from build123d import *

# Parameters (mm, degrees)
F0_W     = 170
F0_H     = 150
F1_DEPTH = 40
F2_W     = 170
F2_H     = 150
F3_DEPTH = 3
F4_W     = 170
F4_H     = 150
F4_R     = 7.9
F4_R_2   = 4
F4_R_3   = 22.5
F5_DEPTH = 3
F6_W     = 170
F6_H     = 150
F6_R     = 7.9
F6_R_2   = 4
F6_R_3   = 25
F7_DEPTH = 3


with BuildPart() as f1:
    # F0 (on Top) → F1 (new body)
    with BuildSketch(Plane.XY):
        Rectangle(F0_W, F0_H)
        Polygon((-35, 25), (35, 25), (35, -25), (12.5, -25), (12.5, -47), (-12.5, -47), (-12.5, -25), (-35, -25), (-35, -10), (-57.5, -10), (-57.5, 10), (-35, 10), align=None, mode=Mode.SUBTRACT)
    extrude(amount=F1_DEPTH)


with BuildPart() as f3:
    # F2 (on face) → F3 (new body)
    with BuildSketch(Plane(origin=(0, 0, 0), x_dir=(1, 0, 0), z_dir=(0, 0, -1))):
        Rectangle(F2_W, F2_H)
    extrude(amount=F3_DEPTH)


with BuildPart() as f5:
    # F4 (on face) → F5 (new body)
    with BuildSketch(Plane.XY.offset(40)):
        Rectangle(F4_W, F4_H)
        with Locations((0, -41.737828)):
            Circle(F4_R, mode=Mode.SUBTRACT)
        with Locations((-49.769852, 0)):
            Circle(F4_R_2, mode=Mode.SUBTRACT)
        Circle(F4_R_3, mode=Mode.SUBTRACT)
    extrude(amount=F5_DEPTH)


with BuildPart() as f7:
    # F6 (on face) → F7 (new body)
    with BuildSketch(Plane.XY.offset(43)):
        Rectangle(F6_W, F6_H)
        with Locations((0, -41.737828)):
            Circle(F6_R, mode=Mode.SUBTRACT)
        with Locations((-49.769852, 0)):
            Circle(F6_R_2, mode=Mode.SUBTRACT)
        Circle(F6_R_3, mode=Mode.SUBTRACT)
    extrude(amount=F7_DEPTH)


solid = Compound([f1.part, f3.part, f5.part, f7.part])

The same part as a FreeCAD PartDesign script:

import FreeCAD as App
import Part
import Sketcher
from FreeCAD import Vector

doc = App.newDocument("Part")
body = doc.addObject("PartDesign::Body", "Body")

# Sketch on XY plane
sketch1 = body.newObject("Sketcher::SketchObject", "Sketch")
sketch1.AttachmentSupport = (doc.getObject("XY_Plane"), [""])
sketch1.MapMode = "FlatFace"
sketch1.addGeometry([
    Part.LineSegment(Vector(-85, 75, 0), Vector(-85, -75, 0)),  # 0
    Part.LineSegment(Vector(-85, -75, 0), Vector(85, -75, 0)),  # 1
    Part.LineSegment(Vector(85, -75, 0), Vector(85, 75, 0)),  # 2
    Part.LineSegment(Vector(85, 75, 0), Vector(-85, 75, 0)),  # 3
    Part.LineSegment(Vector(-35, 10, 0), Vector(-35, 25, 0)),  # 4
    Part.LineSegment(Vector(-35, 25, 0), Vector(35, 25, 0)),  # 5
    Part.LineSegment(Vector(35, 25, 0), Vector(35, -25, 0)),  # 6
    Part.LineSegment(Vector(35, -25, 0), Vector(12, -25, 0)),  # 7
    Part.LineSegment(Vector(12, -25, 0), Vector(12, -47, 0)),  # 8
    Part.LineSegment(Vector(12, -47, 0), Vector(-12, -47, 0)),  # 9
    Part.LineSegment(Vector(-12, -47, 0), Vector(-12, -25, 0)),  # 10
    Part.LineSegment(Vector(-12, -25, 0), Vector(-35, -25, 0)),  # 11
    Part.LineSegment(Vector(-35, -25, 0), Vector(-35, -10, 0)),  # 12
    Part.LineSegment(Vector(-35, -10, 0), Vector(-58, -10, 0)),  # 13
    Part.LineSegment(Vector(-58, -10, 0), Vector(-58, 10, 0)),  # 14
    Part.LineSegment(Vector(-58, 10, 0), Vector(-35, 10, 0)),  # 15
], False)
sketch1.addConstraint([
    Sketcher.Constraint("Coincident", 0, 2, 1, 1),
    Sketcher.Constraint("Coincident", 1, 2, 2, 1),
    Sketcher.Constraint("Coincident", 2, 2, 3, 1),
    Sketcher.Constraint("Coincident", 3, 2, 0, 1),
    Sketcher.Constraint("Coincident", 4, 2, 5, 1),
    Sketcher.Constraint("Coincident", 5, 2, 6, 1),
    Sketcher.Constraint("Coincident", 6, 2, 7, 1),
    Sketcher.Constraint("Coincident", 7, 2, 8, 1),
    Sketcher.Constraint("Coincident", 8, 2, 9, 1),
    Sketcher.Constraint("Coincident", 9, 2, 10, 1),
    Sketcher.Constraint("Coincident", 10, 2, 11, 1),
    Sketcher.Constraint("Coincident", 11, 2, 12, 1),
    Sketcher.Constraint("Coincident", 12, 2, 13, 1),
    Sketcher.Constraint("Coincident", 13, 2, 14, 1),
    Sketcher.Constraint("Coincident", 14, 2, 15, 1),
    Sketcher.Constraint("Coincident", 15, 2, 4, 1),
    Sketcher.Constraint("Vertical", 0),
    Sketcher.Constraint("Horizontal", 1),
    Sketcher.Constraint("Vertical", 2),
    Sketcher.Constraint("Horizontal", 3),
    Sketcher.Constraint("Vertical", 4),
    Sketcher.Constraint("Horizontal", 5),
    Sketcher.Constraint("Vertical", 6),
    Sketcher.Constraint("Horizontal", 7),
    Sketcher.Constraint("Vertical", 8),
    Sketcher.Constraint("Horizontal", 9),
    Sketcher.Constraint("Vertical", 10),
    Sketcher.Constraint("Horizontal", 11),
    Sketcher.Constraint("Vertical", 12),
    Sketcher.Constraint("Horizontal", 13),
    Sketcher.Constraint("Vertical", 14),
    Sketcher.Constraint("Horizontal", 15),
    Sketcher.Constraint("Symmetric", 0, 2, 2, 2, -1, 1),
    Sketcher.Constraint("Symmetric", 4, 2, 6, 2, -1, 1),
    Sketcher.Constraint("Symmetric", 5, 2, 11, 2, -1, 1),
    Sketcher.Constraint("Equal", 7, 11),
    Sketcher.Constraint("Equal", 11, 13),
    Sketcher.Constraint("Equal", 4, 12),
    Sketcher.Constraint("DistanceX", 1, 1, 1, 2, 170.0),
    Sketcher.Constraint("DistanceX", 5, 1, 5, 2, 70.0),
    Sketcher.Constraint("DistanceX", 9, 2, 9, 1, 25.0),
    Sketcher.Constraint("DistanceY", 0, 2, 0, 1, 150.0),
    Sketcher.Constraint("DistanceY", 4, 1, 4, 2, 15.0),
    Sketcher.Constraint("DistanceY", 6, 2, 6, 1, 50.0),
    Sketcher.Constraint("DistanceY", 8, 2, 8, 1, 22.0),
])
pad1 = body.newObject("PartDesign::Pad", "Pad")
pad1.Profile = sketch1
pad1.Length = 40
body2 = doc.addObject("PartDesign::Body", "Body001")

# Sketch on XY plane
sketch2 = body2.newObject("Sketcher::SketchObject", "Sketch001")
sketch2.AttachmentSupport = (doc.getObject("XY_Plane001"), [""])
sketch2.MapMode = "FlatFace"
sketch2.addGeometry([
    Part.LineSegment(Vector(-85, -75, 0), Vector(-85, 75, 0)),
    Part.LineSegment(Vector(-85, 75, 0), Vector(85, 75, 0)),
    Part.LineSegment(Vector(85, 75, 0), Vector(85, -75, 0)),
    Part.LineSegment(Vector(85, -75, 0), Vector(-85, -75, 0)),
], False)
sketch2.addConstraint([
    Sketcher.Constraint("Coincident", 0, 2, 1, 1),
    Sketcher.Constraint("Coincident", 1, 2, 2, 1),
    Sketcher.Constraint("Coincident", 2, 2, 3, 1),
    Sketcher.Constraint("Coincident", 3, 2, 0, 1),
    Sketcher.Constraint("Vertical", 0),
    Sketcher.Constraint("Horizontal", 1),
    Sketcher.Constraint("Vertical", 2),
    Sketcher.Constraint("Horizontal", 3),
    Sketcher.Constraint("Symmetric", 0, 2, 2, 2, -1, 1),
    Sketcher.Constraint("DistanceX", 1, 1, 1, 2, 170.0),
    Sketcher.Constraint("DistanceY", 0, 1, 0, 2, 150.0),
])
pad2 = body2.newObject("PartDesign::Pad", "Pad001")
pad2.Profile = sketch2
pad2.Length = 3
pad2.Reversed = True
body3 = doc.addObject("PartDesign::Body", "Body002")

# Sketch on XY plane
sketch3 = body3.newObject("Sketcher::SketchObject", "Sketch002")
sketch3.AttachmentSupport = (doc.getObject("XY_Plane002"), [""])
sketch3.MapMode = "FlatFace"
sketch3.AttachmentOffset = App.Placement(Vector(0, 0, 40), App.Rotation())
sketch3.addGeometry([
    Part.LineSegment(Vector(-85, 75, 0), Vector(-85, -75, 0)),  # 0
    Part.LineSegment(Vector(-85, -75, 0), Vector(85, -75, 0)),  # 1
    Part.LineSegment(Vector(85, -75, 0), Vector(85, 75, 0)),  # 2
    Part.LineSegment(Vector(85, 75, 0), Vector(-85, 75, 0)),  # 3
    Part.Circle(Vector(0, -41.7, 0), Vector(0, 0, 1), 7.9),  # 4
    Part.Circle(Vector(-49.8, 0, 0), Vector(0, 0, 1), 4),  # 5
    Part.Circle(Vector(0, 0, 0), Vector(0, 0, 1), 22.5),  # 6
], False)
sketch3.addConstraint([
    Sketcher.Constraint("Coincident", 0, 2, 1, 1),
    Sketcher.Constraint("Coincident", 1, 2, 2, 1),
    Sketcher.Constraint("Coincident", 2, 2, 3, 1),
    Sketcher.Constraint("Coincident", 3, 2, 0, 1),
    Sketcher.Constraint("Vertical", 0),
    Sketcher.Constraint("Horizontal", 1),
    Sketcher.Constraint("Vertical", 2),
    Sketcher.Constraint("Horizontal", 3),
    Sketcher.Constraint("Coincident", 6, 3, -1, 1),
    Sketcher.Constraint("Symmetric", 0, 2, 2, 2, -1, 1),
    Sketcher.Constraint("PointOnObject", 4, 3, -2),
    Sketcher.Constraint("PointOnObject", 5, 3, -1),
    Sketcher.Constraint("Diameter", 5, 8.0),
    Sketcher.Constraint("Diameter", 6, 45.0),
    Sketcher.Constraint("Diameter", 4, 15.8),
    Sketcher.Constraint("DistanceX", 1, 1, 1, 2, 170.0),
    Sketcher.Constraint("DistanceY", 0, 2, 0, 1, 150.0),
    Sketcher.Constraint("DistanceY", 4, 3, 2, 2, 116.737828),
    Sketcher.Constraint("DistanceX", 5, 3, -1, 1, 49.769852),
])
pad3 = body3.newObject("PartDesign::Pad", "Pad002")
pad3.Profile = sketch3
pad3.Length = 3
body4 = doc.addObject("PartDesign::Body", "Body003")

# Sketch on XY plane
sketch4 = body4.newObject("Sketcher::SketchObject", "Sketch003")
sketch4.AttachmentSupport = (doc.getObject("XY_Plane003"), [""])
sketch4.MapMode = "FlatFace"
sketch4.AttachmentOffset = App.Placement(Vector(0, 0, 43), App.Rotation())
sketch4.addGeometry([
    Part.LineSegment(Vector(-85, 75, 0), Vector(-85, -75, 0)),  # 0
    Part.LineSegment(Vector(-85, -75, 0), Vector(85, -75, 0)),  # 1
    Part.LineSegment(Vector(85, -75, 0), Vector(85, 75, 0)),  # 2
    Part.LineSegment(Vector(85, 75, 0), Vector(-85, 75, 0)),  # 3
    Part.Circle(Vector(0, -41.7, 0), Vector(0, 0, 1), 7.9),  # 4
    Part.Circle(Vector(-49.8, 0, 0), Vector(0, 0, 1), 4),  # 5
    Part.Circle(Vector(0, 0, 0), Vector(0, 0, 1), 25),  # 6
], False)
sketch4.addConstraint([
    Sketcher.Constraint("Coincident", 0, 2, 1, 1),
    Sketcher.Constraint("Coincident", 1, 2, 2, 1),
    Sketcher.Constraint("Coincident", 2, 2, 3, 1),
    Sketcher.Constraint("Coincident", 3, 2, 0, 1),
    Sketcher.Constraint("Vertical", 0),
    Sketcher.Constraint("Horizontal", 1),
    Sketcher.Constraint("Vertical", 2),
    Sketcher.Constraint("Horizontal", 3),
    Sketcher.Constraint("Coincident", 6, 3, -1, 1),
    Sketcher.Constraint("Symmetric", 0, 2, 2, 2, -1, 1),
    Sketcher.Constraint("PointOnObject", 4, 3, -2),
    Sketcher.Constraint("PointOnObject", 5, 3, -1),
    Sketcher.Constraint("Diameter", 5, 8.0),
    Sketcher.Constraint("Diameter", 6, 50.0),
    Sketcher.Constraint("Diameter", 4, 15.8),
    Sketcher.Constraint("DistanceX", 1, 1, 1, 2, 170.0),
    Sketcher.Constraint("DistanceY", 0, 2, 0, 1, 150.0),
    Sketcher.Constraint("DistanceY", 4, 3, 2, 2, 116.737828),
    Sketcher.Constraint("DistanceX", 5, 3, -1, 1, 49.769852),
])
pad4 = body4.newObject("PartDesign::Pad", "Pad003")
pad4.Profile = sketch4
pad4.Length = 3

doc.recompute()
